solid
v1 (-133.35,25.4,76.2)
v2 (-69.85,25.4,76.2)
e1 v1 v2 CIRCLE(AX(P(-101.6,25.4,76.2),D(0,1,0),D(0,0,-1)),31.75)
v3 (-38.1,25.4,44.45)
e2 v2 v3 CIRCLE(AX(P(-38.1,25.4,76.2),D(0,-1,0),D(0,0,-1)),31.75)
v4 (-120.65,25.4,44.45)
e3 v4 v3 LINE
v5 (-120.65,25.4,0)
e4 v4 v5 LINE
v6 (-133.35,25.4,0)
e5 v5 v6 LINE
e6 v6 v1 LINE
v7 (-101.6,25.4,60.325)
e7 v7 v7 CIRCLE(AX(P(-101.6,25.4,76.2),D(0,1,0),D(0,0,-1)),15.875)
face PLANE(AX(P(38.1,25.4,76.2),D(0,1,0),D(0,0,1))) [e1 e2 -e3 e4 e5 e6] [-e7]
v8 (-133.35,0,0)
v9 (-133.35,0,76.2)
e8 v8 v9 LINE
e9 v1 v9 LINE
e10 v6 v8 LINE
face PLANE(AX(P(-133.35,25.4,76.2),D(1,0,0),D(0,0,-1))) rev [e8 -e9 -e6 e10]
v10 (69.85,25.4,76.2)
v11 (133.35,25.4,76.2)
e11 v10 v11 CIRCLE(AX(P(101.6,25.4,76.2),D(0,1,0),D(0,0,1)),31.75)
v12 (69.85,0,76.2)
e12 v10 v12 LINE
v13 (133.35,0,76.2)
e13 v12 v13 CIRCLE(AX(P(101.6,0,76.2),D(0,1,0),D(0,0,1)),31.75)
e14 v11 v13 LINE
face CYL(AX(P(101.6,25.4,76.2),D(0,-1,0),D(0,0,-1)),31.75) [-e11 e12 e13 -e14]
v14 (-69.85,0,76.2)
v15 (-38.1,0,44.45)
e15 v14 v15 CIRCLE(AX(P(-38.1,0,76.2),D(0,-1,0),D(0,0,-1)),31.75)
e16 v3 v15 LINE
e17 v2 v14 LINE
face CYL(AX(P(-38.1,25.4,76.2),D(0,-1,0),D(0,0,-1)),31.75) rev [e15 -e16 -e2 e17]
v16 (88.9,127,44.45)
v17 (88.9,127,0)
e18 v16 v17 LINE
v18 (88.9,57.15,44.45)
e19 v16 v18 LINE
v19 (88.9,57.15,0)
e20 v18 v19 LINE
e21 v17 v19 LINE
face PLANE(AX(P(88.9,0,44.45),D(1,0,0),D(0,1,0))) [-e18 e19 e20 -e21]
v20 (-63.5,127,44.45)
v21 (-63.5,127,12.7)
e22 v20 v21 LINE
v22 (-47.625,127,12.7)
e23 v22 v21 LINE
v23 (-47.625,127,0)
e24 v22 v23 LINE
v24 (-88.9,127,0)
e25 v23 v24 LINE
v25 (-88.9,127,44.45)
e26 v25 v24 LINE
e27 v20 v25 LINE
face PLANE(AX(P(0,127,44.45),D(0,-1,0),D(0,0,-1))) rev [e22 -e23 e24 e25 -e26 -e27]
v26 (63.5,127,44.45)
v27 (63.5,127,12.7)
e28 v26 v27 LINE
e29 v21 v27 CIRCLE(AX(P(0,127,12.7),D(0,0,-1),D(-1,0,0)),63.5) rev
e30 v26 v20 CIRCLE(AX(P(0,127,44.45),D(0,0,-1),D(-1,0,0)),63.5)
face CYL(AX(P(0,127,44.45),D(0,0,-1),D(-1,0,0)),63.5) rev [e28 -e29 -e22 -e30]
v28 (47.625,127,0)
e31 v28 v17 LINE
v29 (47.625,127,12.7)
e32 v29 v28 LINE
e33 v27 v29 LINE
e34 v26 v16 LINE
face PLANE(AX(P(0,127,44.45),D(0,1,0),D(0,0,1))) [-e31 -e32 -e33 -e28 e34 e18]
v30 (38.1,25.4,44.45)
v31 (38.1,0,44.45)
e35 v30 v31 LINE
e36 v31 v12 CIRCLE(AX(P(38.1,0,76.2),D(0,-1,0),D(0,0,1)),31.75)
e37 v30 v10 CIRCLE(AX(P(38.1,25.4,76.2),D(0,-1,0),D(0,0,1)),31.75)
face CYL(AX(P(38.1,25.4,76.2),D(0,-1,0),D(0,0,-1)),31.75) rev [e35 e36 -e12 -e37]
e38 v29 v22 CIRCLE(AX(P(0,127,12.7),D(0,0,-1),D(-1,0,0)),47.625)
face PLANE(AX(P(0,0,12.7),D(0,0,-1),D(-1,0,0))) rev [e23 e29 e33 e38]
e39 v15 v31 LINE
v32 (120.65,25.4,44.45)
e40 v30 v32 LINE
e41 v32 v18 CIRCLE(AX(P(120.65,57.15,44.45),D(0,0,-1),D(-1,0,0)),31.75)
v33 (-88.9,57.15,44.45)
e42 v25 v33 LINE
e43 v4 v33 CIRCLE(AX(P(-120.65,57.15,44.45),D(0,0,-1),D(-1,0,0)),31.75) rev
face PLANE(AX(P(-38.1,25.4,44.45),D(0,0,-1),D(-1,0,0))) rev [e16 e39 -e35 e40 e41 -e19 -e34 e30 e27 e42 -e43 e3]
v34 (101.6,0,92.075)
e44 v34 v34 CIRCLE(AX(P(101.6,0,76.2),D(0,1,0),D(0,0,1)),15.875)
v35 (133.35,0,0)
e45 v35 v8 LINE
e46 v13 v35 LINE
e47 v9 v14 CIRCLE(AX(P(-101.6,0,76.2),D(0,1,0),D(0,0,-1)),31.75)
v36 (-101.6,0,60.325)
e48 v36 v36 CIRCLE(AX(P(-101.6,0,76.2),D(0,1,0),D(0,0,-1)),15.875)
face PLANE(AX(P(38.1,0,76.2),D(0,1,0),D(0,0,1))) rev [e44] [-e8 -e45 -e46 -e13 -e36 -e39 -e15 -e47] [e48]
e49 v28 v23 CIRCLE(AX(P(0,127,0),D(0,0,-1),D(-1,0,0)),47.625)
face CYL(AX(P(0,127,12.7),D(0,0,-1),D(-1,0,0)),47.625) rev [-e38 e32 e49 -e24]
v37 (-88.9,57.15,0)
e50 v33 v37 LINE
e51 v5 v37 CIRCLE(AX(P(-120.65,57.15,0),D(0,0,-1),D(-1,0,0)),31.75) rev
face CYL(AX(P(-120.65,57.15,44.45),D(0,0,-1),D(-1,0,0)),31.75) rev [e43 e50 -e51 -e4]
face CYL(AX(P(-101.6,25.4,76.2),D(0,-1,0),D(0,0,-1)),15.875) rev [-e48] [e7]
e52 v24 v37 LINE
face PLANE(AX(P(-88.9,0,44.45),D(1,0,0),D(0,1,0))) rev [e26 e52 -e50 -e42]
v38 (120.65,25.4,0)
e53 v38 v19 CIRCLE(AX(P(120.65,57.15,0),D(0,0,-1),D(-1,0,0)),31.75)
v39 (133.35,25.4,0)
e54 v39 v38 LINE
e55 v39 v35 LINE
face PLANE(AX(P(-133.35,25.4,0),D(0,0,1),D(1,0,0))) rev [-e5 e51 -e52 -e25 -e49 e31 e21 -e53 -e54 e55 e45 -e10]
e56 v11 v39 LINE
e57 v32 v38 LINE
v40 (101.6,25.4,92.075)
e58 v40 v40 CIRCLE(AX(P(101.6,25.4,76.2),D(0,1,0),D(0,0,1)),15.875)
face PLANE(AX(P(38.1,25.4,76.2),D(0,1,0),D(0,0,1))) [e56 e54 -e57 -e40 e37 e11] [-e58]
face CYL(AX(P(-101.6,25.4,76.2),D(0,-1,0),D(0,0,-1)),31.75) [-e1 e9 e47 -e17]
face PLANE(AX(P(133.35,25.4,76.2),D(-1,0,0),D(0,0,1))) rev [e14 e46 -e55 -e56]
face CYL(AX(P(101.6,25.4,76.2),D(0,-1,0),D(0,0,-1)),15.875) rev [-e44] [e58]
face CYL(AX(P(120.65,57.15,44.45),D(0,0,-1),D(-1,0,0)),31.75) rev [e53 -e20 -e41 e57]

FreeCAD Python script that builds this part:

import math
import FreeCAD as App
import Part
import Sketcher
from FreeCAD import Vector
Q = App.Units.Quantity

doc = App.newDocument("Part")
body = doc.addObject("PartDesign::Body", "Body")

# Sketch on XZ plane
sketch1 = body.newObject("Sketcher::SketchObject", "Sketch")
sketch1.AttachmentSupport = (doc.getObject("XZ_Plane"), [""])
sketch1.MapMode = "FlatFace"
sketch1.addGeometry([
    Part.LineSegment(Vector(133, 0, 0), Vector(-133, 0, 0)),  # 0
    Part.LineSegment(Vector(-133, 0, 0), Vector(-133, 76, 0)),  # 1
    Part.ArcOfCircle(Part.Circle(Vector(-102, 76, 0), Vector(0, 0, 1), 32), math.radians(0), math.radians(180)),  # 2
    Part.ArcOfCircle(Part.Circle(Vector(-38, 76, 0), Vector(0, 0, 1), 32), math.radians(180), math.radians(270)),  # 3
    Part.LineSegment(Vector(-38, 44, 0), Vector(38, 44, 0)),  # 4
    Part.ArcOfCircle(Part.Circle(Vector(38, 76, 0), Vector(0, 0, 1), 32), math.radians(-90), math.radians(0)),  # 5
    Part.ArcOfCircle(Part.Circle(Vector(102, 76, 0), Vector(0, 0, 1), 32), math.radians(0), math.radians(180)),  # 6
    Part.LineSegment(Vector(133, 76, 0), Vector(133, 0, 0)),  # 7
    Part.Circle(Vector(102, 76, 0), Vector(0, 0, 1), 16),  # 8
    Part.Circle(Vector(-102, 76, 0), Vector(0, 0, 1), 16),  # 9
], False)
sketch1.addConstraint([
    Sketcher.Constraint("Coincident", 0, 2, 1, 1),
    Sketcher.Constraint("Tangent", 1, 2, 2, 2),
    Sketcher.Constraint("Tangent", 2, 1, 3, 1),
    Sketcher.Constraint("Tangent", 3, 2, 4, 1),
    Sketcher.Constraint("Tangent", 4, 2, 5, 1),
    Sketcher.Constraint("Tangent", 5, 2, 6, 2),
    Sketcher.Constraint("Tangent", 6, 1, 7, 1),
    Sketcher.Constraint("Coincident", 7, 2, 0, 1),
    Sketcher.Constraint("Horizontal", 0),
    Sketcher.Constraint("Vertical", 1),
    Sketcher.Constraint("Horizontal", 4),
    Sketcher.Constraint("Vertical", 7),
    Sketcher.Constraint("Coincident", 8, 3, 6, 3),
    Sketcher.Constraint("Coincident", 9, 3, 2, 3),
    Sketcher.Constraint("Equal", 2, 3),
    Sketcher.Constraint("Equal", 3, 5),
    Sketcher.Constraint("Equal", 5, 6),
    Sketcher.Constraint("Equal", 8, 9),
    Sketcher.Constraint("Symmetric", 0, 2, 7, 2, -1, 1),
    Sketcher.Constraint("Horizontal", 2, 3, 3, 3),
    Sketcher.Constraint("Horizontal", 5, 3, 6, 3),
    Sketcher.Constraint("Equal", 4, 1),
    Sketcher.Constraint("Diameter", 8, Q("1.25 in")),
    Sketcher.Constraint("DistanceX", 4, 1, 4, 2, Q("3 in")),
    Sketcher.Constraint("Radius", 2, Q("1.25 in")),
])
pad1 = body.newObject("PartDesign::Pad", "Pad")
pad1.Profile = sketch1
pad1.Length = Q("1 in")
pad1.Reversed = True

# Sketch on XY plane
sketch2 = body.newObject("Sketcher::SketchObject", "Sketch001")
sketch2.AttachmentSupport = (doc.getObject("XY_Plane"), [""])
sketch2.MapMode = "FlatFace"
sketch2.addGeometry([
    Part.ArcOfCircle(Part.Circle(Vector(0, 127, 0), Vector(0, 0, 1), 64), math.radians(180), math.radians(360)),  # 0
    Part.LineSegment(Vector(64, 127, 0), Vector(89, 127, 0)),  # 1
    Part.LineSegment(Vector(89, 127, 0), Vector(89, 57, 0)),  # 2
    Part.ArcOfCircle(Part.Circle(Vector(121, 57, 0), Vector(0, 0, 1), 32), math.radians(180), math.radians(270)),  # 3
    Part.LineSegment(Vector(121, 25, 0), Vector(-121, 25, 0)),  # 4
    Part.ArcOfCircle(Part.Circle(Vector(-121, 57, 0), Vector(0, 0, 1), 32), math.radians(-90), math.radians(0)),  # 5
    Part.LineSegment(Vector(-89, 57, 0), Vector(-89, 127, 0)),  # 6
    Part.LineSegment(Vector(-89, 127, 0), Vector(-64, 127, 0)),  # 7
], False)
sketch2.addConstraint([
    Sketcher.Constraint("Coincident", 0, 2, 1, 1),
    Sketcher.Constraint("Coincident", 1, 2, 2, 1),
    Sketcher.Constraint("Tangent", 2, 2, 3, 1),
    Sketcher.Constraint("Tangent", 3, 2, 4, 1),
    Sketcher.Constraint("Tangent", 4, 2, 5, 1),
    Sketcher.Constraint("Tangent", 5, 2, 6, 1),
    Sketcher.Constraint("Coincident", 6, 2, 7, 1),
    Sketcher.Constraint("Coincident", 7, 2, 0, 1),
    Sketcher.Constraint("Horizontal", 1),
    Sketcher.Constraint("Vertical", 2),
    Sketcher.Constraint("Horizontal", 4),
    Sketcher.Constraint("Vertical", 6),
    Sketcher.Constraint("Horizontal", 7),
    Sketcher.Constraint("Equal", 3, 5),
    Sketcher.Constraint("Symmetric", 1, 2, 6, 2, -2),
    Sketcher.Constraint("PointOnObject", 0, 3, -2),
    Sketcher.Constraint("Radius", 0, Q("2.5 in")),
    Sketcher.Constraint("DistanceX", 1, 1, 1, 2, Q("1 in")),
    Sketcher.Constraint("Radius", 3, Q("1.25 in")),
    Sketcher.Constraint("DistanceY", -1, 1, 0, 3, Q("5 in")),
    Sketcher.Constraint("DistanceY", -1, 1, 0, 2, Q("5 in")),
    Sketcher.Constraint("DistanceY", -1, 1, 3, 2, Q("1 in")),
])
pad2 = body.newObject("PartDesign::Pad", "Pad001")
pad2.Profile = sketch2
pad2.Length = Q("1.75 in")

# Sketch on XY plane
sketch3 = body.newObject("Sketcher::SketchObject", "Sketch002")
sketch3.AttachmentSupport = (doc.getObject("XY_Plane"), [""])
sketch3.MapMode = "FlatFace"
sketch3.addGeometry([
    Part.LineSegment(Vector(48, 127, 0), Vector(64, 127, 0)),
    Part.ArcOfCircle(Part.Circle(Vector(0, 127, 0), Vector(0, 0, 1), 64), math.radians(180), math.radians(360)),
    Part.LineSegment(Vector(-64, 127, 0), Vector(-48, 127, 0)),
    Part.ArcOfCircle(Part.Circle(Vector(0, 127, 0), Vector(0, 0, 1), 48), math.radians(180), math.radians(360)),
], False)
sketch3.addConstraint([
    Sketcher.Constraint("Coincident", 0, 2, 1, 2),
    Sketcher.Constraint("Coincident", 1, 1, 2, 1),
    Sketcher.Constraint("Coincident", 2, 2, 3, 1),
    Sketcher.Constraint("Coincident", 3, 2, 0, 1),
    Sketcher.Constraint("Horizontal", 0),
    Sketcher.Constraint("Horizontal", 2),
    Sketcher.Constraint("Coincident", 3, 3, 1, 3),
    Sketcher.Constraint("Symmetric", 0, 2, 1, 1, -2),
    Sketcher.Constraint("Horizontal", 3, 3, 0, 2),
    Sketcher.Constraint("Radius", 1, Q("2.5 in")),
    Sketcher.Constraint("DistanceY", -1, 1, 1, 3, Q("5 in")),
    Sketcher.Constraint("Radius", 3, Q("1.875 in")),
])
pad3 = body.newObject("PartDesign::Pad", "Pad002")
pad3.Profile = sketch3
pad3.Length = Q("0.5 in")

doc.recompute()
